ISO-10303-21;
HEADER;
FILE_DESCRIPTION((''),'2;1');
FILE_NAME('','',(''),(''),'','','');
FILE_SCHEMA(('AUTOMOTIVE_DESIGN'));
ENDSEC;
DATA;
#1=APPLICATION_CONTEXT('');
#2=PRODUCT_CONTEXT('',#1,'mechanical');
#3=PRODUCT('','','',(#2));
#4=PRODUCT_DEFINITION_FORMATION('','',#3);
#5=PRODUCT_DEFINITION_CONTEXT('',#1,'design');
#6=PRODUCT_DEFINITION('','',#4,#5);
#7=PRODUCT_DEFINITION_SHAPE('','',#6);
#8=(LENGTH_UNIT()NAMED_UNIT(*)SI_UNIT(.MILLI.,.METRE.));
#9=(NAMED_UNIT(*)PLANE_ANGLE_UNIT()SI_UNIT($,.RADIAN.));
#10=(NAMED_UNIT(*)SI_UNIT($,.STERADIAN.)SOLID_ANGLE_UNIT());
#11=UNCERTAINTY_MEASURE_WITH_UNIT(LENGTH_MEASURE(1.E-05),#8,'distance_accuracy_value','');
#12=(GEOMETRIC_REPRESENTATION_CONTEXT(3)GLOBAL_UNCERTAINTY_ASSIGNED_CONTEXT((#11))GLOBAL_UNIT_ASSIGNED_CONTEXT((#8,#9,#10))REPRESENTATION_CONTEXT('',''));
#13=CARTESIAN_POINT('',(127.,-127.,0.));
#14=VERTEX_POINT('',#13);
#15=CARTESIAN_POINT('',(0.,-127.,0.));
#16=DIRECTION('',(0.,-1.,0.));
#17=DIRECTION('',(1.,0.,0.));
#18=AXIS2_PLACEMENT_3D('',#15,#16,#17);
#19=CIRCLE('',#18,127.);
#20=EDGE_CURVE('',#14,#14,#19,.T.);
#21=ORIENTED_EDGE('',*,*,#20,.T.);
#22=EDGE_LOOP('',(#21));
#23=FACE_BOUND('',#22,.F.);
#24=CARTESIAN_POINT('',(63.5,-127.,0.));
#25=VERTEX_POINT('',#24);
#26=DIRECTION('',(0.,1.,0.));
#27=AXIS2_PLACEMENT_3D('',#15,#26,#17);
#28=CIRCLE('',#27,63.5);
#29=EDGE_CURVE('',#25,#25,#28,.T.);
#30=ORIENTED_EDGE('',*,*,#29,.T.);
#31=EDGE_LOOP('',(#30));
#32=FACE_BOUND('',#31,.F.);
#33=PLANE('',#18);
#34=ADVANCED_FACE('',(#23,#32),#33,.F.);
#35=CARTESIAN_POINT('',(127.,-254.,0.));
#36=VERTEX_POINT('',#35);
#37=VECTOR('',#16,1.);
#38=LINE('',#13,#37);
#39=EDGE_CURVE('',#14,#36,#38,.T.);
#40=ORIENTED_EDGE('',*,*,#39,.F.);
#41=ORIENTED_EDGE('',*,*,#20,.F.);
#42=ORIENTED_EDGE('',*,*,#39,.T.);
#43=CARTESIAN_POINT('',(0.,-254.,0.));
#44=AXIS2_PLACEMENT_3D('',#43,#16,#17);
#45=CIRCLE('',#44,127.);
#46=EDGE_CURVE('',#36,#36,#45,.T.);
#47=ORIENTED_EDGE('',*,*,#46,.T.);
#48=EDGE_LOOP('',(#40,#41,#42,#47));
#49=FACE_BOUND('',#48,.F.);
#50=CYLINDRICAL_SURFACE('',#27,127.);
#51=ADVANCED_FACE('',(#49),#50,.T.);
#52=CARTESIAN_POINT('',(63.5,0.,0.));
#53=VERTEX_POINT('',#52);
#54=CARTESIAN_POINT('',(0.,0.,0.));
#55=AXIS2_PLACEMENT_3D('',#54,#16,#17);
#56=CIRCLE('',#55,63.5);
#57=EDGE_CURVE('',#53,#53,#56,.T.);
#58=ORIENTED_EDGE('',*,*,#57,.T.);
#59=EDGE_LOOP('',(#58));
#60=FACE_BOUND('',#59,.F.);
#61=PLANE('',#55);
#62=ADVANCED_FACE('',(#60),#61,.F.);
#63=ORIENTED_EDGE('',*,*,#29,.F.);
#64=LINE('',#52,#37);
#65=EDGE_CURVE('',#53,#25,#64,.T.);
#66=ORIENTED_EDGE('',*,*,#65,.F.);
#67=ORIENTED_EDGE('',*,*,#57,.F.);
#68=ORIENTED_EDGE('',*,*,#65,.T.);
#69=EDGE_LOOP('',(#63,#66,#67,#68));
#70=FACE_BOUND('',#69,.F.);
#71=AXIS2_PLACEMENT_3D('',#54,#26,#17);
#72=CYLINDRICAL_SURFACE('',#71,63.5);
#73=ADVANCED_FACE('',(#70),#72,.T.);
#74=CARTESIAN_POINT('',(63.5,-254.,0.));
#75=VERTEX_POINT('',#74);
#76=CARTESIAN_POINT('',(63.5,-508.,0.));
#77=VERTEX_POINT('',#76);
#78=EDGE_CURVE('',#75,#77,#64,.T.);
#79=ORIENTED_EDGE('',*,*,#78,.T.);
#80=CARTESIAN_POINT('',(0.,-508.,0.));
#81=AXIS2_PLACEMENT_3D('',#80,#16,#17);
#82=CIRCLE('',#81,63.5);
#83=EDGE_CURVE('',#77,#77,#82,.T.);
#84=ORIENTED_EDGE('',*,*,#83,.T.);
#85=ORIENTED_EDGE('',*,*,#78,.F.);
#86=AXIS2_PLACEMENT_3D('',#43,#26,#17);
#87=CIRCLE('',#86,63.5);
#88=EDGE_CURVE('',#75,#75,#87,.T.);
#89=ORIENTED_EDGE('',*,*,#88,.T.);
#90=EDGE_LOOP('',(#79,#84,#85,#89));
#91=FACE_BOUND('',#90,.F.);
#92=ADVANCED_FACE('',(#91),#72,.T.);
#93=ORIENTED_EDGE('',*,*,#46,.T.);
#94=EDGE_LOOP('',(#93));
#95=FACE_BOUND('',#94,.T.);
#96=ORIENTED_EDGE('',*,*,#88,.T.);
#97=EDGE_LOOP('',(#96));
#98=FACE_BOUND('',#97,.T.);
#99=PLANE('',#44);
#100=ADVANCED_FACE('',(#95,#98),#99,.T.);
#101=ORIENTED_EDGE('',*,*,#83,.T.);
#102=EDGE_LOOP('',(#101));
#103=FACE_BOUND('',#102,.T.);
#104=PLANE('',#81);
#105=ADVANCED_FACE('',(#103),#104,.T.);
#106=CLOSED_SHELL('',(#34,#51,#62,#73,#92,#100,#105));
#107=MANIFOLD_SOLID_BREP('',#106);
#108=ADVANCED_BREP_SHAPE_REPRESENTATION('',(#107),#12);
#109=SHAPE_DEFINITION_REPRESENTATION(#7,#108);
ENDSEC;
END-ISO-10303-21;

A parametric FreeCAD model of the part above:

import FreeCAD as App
import Part
import Sketcher
Q = App.Units.Quantity

doc = App.newDocument("Part")
params = doc.addObject("Spreadsheet::Sheet", "Params")
for row, (alias, value) in enumerate([
    ("sketch1_diameter", "5 in"),
    ("pad1_length", "20 in"),
    ("sketch2_diameter", "10 in"),
    ("pad2_length", "5 in"),
], start=1):
    params.set(f"A{row}", alias)
    params.set(f"B{row}", "=" + value)
    params.setAlias(f"B{row}", alias)

body = doc.addObject("PartDesign::Body", "Body")

# Sketch on XZ plane
sketch1 = doc.addObject("Sketcher::SketchObject", "Sketch")
body.addObject(sketch1)
sketch1.AttachmentSupport = (doc.XZ_Plane, [""])
sketch1.MapMode = "FlatFace"
sketch1.addGeometry(Part.Circle(App.Vector(0, 0, 0), App.Vector(0, 0, 1), 64), False)
sketch1.addConstraint(Sketcher.Constraint("Coincident", 0, 3, -1, 1))
sketch1.addConstraint(Sketcher.Constraint("Diameter", 0, Q("5 in")))
sketch1.setExpression("Constraints[1]", "Params.sketch1_diameter")
pad1 = doc.addObject("PartDesign::Pad", "Pad")
body.addObject(pad1)
pad1.Profile = sketch1
pad1.setExpression("Length", "Params.pad1_length")

# Sketch on XZ plane
sketch2 = doc.addObject("Sketcher::SketchObject", "Sketch001")
body.addObject(sketch2)
sketch2.AttachmentSupport = (doc.XZ_Plane, [""])
sketch2.MapMode = "FlatFace"
sketch2.AttachmentOffset = App.Placement(App.Vector(0, 0, 5 * 25.4), App.Rotation())
sketch2.addGeometry(Part.Circle(App.Vector(0, 0, 0), App.Vector(0, 0, 1), 127), False)
sketch2.addConstraint(Sketcher.Constraint("Coincident", 0, 3, -1, 1))
sketch2.addConstraint(Sketcher.Constraint("Diameter", 0, Q("10 in")))
sketch2.setExpression("Constraints[1]", "Params.sketch2_diameter")
pad2 = doc.addObject("PartDesign::Pad", "Pad001")
body.addObject(pad2)
pad2.Profile = sketch2
pad2.setExpression("Length", "Params.pad2_length")

doc.recompute()
